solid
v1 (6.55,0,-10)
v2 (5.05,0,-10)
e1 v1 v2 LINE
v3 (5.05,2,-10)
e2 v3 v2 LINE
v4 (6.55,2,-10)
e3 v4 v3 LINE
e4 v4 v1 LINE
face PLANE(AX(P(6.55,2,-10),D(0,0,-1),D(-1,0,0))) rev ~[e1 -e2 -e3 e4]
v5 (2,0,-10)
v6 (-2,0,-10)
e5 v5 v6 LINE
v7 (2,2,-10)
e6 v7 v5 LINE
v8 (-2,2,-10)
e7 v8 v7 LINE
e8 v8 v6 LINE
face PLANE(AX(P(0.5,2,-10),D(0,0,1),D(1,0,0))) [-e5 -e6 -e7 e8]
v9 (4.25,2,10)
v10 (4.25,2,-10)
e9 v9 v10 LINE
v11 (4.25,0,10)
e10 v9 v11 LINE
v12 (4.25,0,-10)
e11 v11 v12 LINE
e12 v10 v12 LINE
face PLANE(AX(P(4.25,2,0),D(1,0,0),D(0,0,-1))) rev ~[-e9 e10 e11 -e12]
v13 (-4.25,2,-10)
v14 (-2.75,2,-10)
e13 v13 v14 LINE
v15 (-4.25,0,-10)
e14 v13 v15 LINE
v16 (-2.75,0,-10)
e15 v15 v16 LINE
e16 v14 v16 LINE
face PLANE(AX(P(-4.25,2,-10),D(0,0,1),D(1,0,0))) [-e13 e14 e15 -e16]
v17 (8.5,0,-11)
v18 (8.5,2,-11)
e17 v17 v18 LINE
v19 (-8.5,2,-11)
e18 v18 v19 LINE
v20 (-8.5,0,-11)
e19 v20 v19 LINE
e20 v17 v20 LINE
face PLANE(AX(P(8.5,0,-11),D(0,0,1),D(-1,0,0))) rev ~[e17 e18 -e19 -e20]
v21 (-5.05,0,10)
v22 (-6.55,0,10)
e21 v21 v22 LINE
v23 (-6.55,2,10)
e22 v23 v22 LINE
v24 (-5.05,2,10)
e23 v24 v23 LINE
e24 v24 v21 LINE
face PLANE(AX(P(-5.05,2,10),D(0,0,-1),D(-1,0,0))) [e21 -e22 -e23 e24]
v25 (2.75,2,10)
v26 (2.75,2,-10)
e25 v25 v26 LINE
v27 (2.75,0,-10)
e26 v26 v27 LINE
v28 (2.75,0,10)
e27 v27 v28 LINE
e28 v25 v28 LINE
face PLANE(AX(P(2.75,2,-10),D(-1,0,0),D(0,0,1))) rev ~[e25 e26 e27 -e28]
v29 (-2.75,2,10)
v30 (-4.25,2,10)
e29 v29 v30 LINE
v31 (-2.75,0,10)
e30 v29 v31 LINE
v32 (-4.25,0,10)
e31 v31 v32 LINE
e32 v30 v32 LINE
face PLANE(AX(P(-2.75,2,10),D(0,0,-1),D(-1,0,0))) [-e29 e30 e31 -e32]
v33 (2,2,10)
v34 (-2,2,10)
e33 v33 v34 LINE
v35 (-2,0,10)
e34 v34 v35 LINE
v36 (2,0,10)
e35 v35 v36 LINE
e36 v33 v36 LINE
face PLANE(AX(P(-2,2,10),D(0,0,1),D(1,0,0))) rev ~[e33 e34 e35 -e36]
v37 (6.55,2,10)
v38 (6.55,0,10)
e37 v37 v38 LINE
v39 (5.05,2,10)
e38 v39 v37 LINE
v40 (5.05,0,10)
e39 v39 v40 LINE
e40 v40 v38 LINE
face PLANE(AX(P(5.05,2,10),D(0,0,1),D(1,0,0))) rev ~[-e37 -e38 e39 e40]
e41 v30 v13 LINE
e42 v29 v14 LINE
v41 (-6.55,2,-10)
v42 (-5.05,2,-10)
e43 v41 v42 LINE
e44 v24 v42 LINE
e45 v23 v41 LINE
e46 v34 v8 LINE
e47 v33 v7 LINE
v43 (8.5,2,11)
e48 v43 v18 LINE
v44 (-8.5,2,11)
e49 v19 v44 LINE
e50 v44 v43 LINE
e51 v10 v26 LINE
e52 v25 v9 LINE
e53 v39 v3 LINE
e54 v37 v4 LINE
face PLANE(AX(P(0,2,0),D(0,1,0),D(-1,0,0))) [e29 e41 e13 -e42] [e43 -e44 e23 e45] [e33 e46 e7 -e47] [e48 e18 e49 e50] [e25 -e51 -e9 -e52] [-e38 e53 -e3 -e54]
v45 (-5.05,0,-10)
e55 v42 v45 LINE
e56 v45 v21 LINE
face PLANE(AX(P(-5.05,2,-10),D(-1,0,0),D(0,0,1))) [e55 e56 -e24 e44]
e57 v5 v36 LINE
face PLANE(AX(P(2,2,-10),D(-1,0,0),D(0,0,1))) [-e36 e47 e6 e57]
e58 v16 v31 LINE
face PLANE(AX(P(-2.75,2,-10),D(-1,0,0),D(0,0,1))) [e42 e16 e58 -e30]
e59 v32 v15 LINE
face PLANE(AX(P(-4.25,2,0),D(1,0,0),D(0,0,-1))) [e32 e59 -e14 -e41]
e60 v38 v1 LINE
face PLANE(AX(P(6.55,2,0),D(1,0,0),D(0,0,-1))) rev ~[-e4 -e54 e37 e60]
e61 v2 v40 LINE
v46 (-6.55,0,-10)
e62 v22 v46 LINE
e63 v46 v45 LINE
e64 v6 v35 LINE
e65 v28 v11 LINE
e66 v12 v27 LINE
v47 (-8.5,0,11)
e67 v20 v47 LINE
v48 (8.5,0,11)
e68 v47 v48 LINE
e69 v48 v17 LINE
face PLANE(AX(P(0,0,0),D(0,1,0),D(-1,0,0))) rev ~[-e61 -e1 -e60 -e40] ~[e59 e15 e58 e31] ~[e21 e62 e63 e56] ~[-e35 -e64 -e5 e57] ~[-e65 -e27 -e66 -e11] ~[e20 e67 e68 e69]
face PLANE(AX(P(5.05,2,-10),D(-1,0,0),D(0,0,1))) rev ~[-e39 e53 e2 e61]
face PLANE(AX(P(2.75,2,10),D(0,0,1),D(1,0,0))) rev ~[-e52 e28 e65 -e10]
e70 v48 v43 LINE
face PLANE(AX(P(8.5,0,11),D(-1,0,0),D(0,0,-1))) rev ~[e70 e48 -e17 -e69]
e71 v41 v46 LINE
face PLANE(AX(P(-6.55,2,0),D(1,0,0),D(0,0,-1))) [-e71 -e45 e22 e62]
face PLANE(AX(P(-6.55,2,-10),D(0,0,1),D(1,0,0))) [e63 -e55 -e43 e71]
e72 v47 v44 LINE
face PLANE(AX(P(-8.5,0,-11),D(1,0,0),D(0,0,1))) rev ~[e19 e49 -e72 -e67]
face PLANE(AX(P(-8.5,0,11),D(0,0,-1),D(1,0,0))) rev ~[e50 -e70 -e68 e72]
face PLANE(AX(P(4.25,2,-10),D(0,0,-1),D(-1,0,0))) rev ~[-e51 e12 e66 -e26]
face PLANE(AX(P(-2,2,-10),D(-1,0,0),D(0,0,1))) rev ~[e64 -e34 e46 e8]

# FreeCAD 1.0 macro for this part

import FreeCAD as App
import Part
import Sketcher

V = App.Vector

doc = App.newDocument("Part")
params = doc.addObject("Spreadsheet::Sheet", "Params")
for row, (alias, value) in enumerate([
    ("sketch1_width", "17 mm"),
    ("sketch1_height", "22 mm"),
    ("pad1_length", "2 mm"),
    ("sketch2_height", "20 mm"),
    ("sketch2_width", "1.5 mm"),
    ("sketch3_width", "1 mm"),
    ("sketch3_height", "20 mm"),
], start=1):
    params.set(f"A{row}", alias)
    params.set(f"B{row}", "=" + value)
    params.setAlias(f"B{row}", alias)

body = doc.addObject("PartDesign::Body", "Body")

# Sketch on XZ plane
sketch1 = body.newObject("Sketcher::SketchObject", "Sketch")
sketch1.AttachmentSupport = (doc.getObject("XZ_Plane"), [""])
sketch1.MapMode = "FlatFace"
sketch1.addGeometry([
    Part.LineSegment(V(-8, -11, 0), V(-8, 11, 0)),
    Part.LineSegment(V(-8, 11, 0), V(8, 11, 0)),
    Part.LineSegment(V(8, 11, 0), V(8, -11, 0)),
    Part.LineSegment(V(8, -11, 0), V(-8, -11, 0)),
], False)
sketch1.addConstraint([
    Sketcher.Constraint("Coincident", 0, 2, 1, 1),
    Sketcher.Constraint("Coincident", 1, 2, 2, 1),
    Sketcher.Constraint("Coincident", 2, 2, 3, 1),
    Sketcher.Constraint("Coincident", 3, 2, 0, 1),
    Sketcher.Constraint("Vertical", 0),
    Sketcher.Constraint("Horizontal", 1),
    Sketcher.Constraint("Vertical", 2),
    Sketcher.Constraint("Horizontal", 3),
    Sketcher.Constraint("Symmetric", 0, 2, 2, 2, -1, 1),
    Sketcher.Constraint("DistanceX", 1, 1, 1, 2, 17.0),
    Sketcher.Constraint("DistanceY", 0, 1, 0, 2, 22.0),
])
sketch1.setExpression("Constraints[9]", "Params.sketch1_width")
sketch1.setExpression("Constraints[10]", "Params.sketch1_height")
pad1 = body.newObject("PartDesign::Pad", "Pad")
pad1.Profile = sketch1
pad1.setExpression("Length", "Params.pad1_length")
pad1.Reversed = True

# Sketch on XZ plane
sketch2 = body.newObject("Sketcher::SketchObject", "Sketch001")
sketch2.AttachmentSupport = (doc.getObject("XZ_Plane"), [""])
sketch2.MapMode = "FlatFace"
sketch2.AttachmentOffset = App.Placement(V(0, 0, -2), App.Rotation())
sketch2.addGeometry([
    Part.LineSegment(V(5, -10, 0), V(5, 10, 0)),  # 0
    Part.LineSegment(V(5, 10, 0), V(6.5, 10, 0)),  # 1
    Part.LineSegment(V(6.5, 10, 0), V(6.5, -10, 0)),  # 2
    Part.LineSegment(V(6.5, -10, 0), V(5, -10, 0)),  # 3
    Part.LineSegment(V(2.8, -10, 0), V(2.8, 10, 0)),  # 4
    Part.LineSegment(V(2.8, 10, 0), V(4.2, 10, 0)),  # 5
    Part.LineSegment(V(4.2, 10, 0), V(4.2, -10, 0)),  # 6
    Part.LineSegment(V(4.2, -10, 0), V(2.8, -10, 0)),  # 7
    Part.LineSegment(V(0.5, -10, 0), V(0.5, 10, 0)),  # 8
    Part.LineSegment(V(0.5, 10, 0), V(2, 10, 0)),  # 9
    Part.LineSegment(V(2, 10, 0), V(2, -10, 0)),  # 10
    Part.LineSegment(V(2, -10, 0), V(0.5, -10, 0)),  # 11
    Part.LineSegment(V(-2, -10, 0), V(-2, 10, 0)),  # 12
    Part.LineSegment(V(-2, 10, 0), V(-0.5, 10, 0)),  # 13
    Part.LineSegment(V(-0.5, 10, 0), V(-0.5, -10, 0)),  # 14
    Part.LineSegment(V(-0.5, -10, 0), V(-2, -10, 0)),  # 15
    Part.LineSegment(V(-6.5, -10, 0), V(-6.5, 10, 0)),  # 16
    Part.LineSegment(V(-6.5, 10, 0), V(-5, 10, 0)),  # 17
    Part.LineSegment(V(-5, 10, 0), V(-5, -10, 0)),  # 18
    Part.LineSegment(V(-5, -10, 0), V(-6.5, -10, 0)),  # 19
    Part.LineSegment(V(-4.2, -10, 0), V(-4.2, 10, 0)),  # 20
    Part.LineSegment(V(-4.2, 10, 0), V(-2.8, 10, 0)),  # 21
    Part.LineSegment(V(-2.8, 10, 0), V(-2.8, -10, 0)),  # 22
    Part.LineSegment(V(-2.8, -10, 0), V(-4.2, -10, 0)),  # 23
], False)
sketch2.addConstraint([
    Sketcher.Constraint("Coincident", 0, 2, 1, 1),
    Sketcher.Constraint("Coincident", 1, 2, 2, 1),
    Sketcher.Constraint("Coincident", 2, 2, 3, 1),
    Sketcher.Constraint("Coincident", 3, 2, 0, 1),
    Sketcher.Constraint("Coincident", 4, 2, 5, 1),
    Sketcher.Constraint("Coincident", 5, 2, 6, 1),
    Sketcher.Constraint("Coincident", 6, 2, 7, 1),
    Sketcher.Constraint("Coincident", 7, 2, 4, 1),
    Sketcher.Constraint("Coincident", 8, 2, 9, 1),
    Sketcher.Constraint("Coincident", 9, 2, 10, 1),
    Sketcher.Constraint("Coincident", 10, 2, 11, 1),
    Sketcher.Constraint("Coincident", 11, 2, 8, 1),
    Sketcher.Constraint("Coincident", 12, 2, 13, 1),
    Sketcher.Constraint("Coincident", 13, 2, 14, 1),
    Sketcher.Constraint("Coincident", 14, 2, 15, 1),
    Sketcher.Constraint("Coincident", 15, 2, 12, 1),
    Sketcher.Constraint("Coincident", 16, 2, 17, 1),
    Sketcher.Constraint("Coincident", 17, 2, 18, 1),
    Sketcher.Constraint("Coincident", 18, 2, 19, 1),
    Sketcher.Constraint("Coincident", 19, 2, 16, 1),
    Sketcher.Constraint("Coincident", 20, 2, 21, 1),
    Sketcher.Constraint("Coincident", 21, 2, 22, 1),
    Sketcher.Constraint("Coincident", 22, 2, 23, 1),
    Sketcher.Constraint("Coincident", 23, 2, 20, 1),
    Sketcher.Constraint("Vertical", 0),
    Sketcher.Constraint("Horizontal", 1),
    Sketcher.Constraint("Vertical", 2),
    Sketcher.Constraint("Horizontal", 3),
    Sketcher.Constraint("Vertical", 4),
    Sketcher.Constraint("Horizontal", 5),
    Sketcher.Constraint("Vertical", 6),
    Sketcher.Constraint("Horizontal", 7),
    Sketcher.Constraint("Vertical", 8),
    Sketcher.Constraint("Horizontal", 9),
    Sketcher.Constraint("Vertical", 10),
    Sketcher.Constraint("Horizontal", 11),
    Sketcher.Constraint("Vertical", 12),
    Sketcher.Constraint("Horizontal", 13),
    Sketcher.Constraint("Vertical", 14),
    Sketcher.Constraint("Horizontal", 15),
    Sketcher.Constraint("Vertical", 16),
    Sketcher.Constraint("Horizontal", 17),
    Sketcher.Constraint("Vertical", 18),
    Sketcher.Constraint("Horizontal", 19),
    Sketcher.Constraint("Vertical", 20),
    Sketcher.Constraint("Horizontal", 21),
    Sketcher.Constraint("Vertical", 22),
    Sketcher.Constraint("Horizontal", 23),
    Sketcher.Constraint("Symmetric", 10, 2, 12, 2, -1, 1),
    Sketcher.Constraint("Symmetric", 8, 2, 14, 2, -1, 1),
    Sketcher.Constraint("Symmetric", 2, 2, 16, 2, -1, 1),
    Sketcher.Constraint("Symmetric", 0, 2, 18, 2, -1, 1),
    Sketcher.Constraint("Symmetric", 6, 2, 20, 2, -1, 1),
    Sketcher.Constraint("Symmetric", 4, 2, 22, 2, -1, 1),
    Sketcher.Constraint("Horizontal", 1, 2, 4, 2),
    Sketcher.Constraint("Horizontal", 3, 2, 6, 2),
    Sketcher.Constraint("Horizontal", 5, 2, 8, 2),
    Sketcher.Constraint("Horizontal", 7, 2, 10, 2),
    Sketcher.Constraint("Horizontal", 9, 2, 12, 2),
    Sketcher.Constraint("Equal", 3, 5),
    Sketcher.Constraint("Equal", 7, 9),
    Sketcher.Constraint("DistanceY", 0, 1, 0, 2, 20.0),
    Sketcher.Constraint("DistanceX", 1, 1, 1, 2, 1.5),
    Sketcher.Constraint("DistanceX", -1, 1, 8, 2, 0.5),
    Sketcher.Constraint("DistanceX", -1, 1, 0, 2, 5.05),
    Sketcher.Constraint("DistanceX", -1, 1, 4, 2, 2.75),
])
sketch2.setExpression("Constraints[61]", "Params.sketch2_height")
sketch2.setExpression("Constraints[62]", "Params.sketch2_width")
pocket1 = body.newObject("PartDesign::Pocket", "Pocket")
pocket1.Profile = sketch2
pocket1.Type = "ThroughAll"
pocket1.Reversed = True

# Sketch on XZ plane
sketch3 = body.newObject("Sketcher::SketchObject", "Sketch002")
sketch3.AttachmentSupport = (doc.getObject("XZ_Plane"), [""])
sketch3.MapMode = "FlatFace"
sketch3.AttachmentOffset = App.Placement(V(0, 0, -2), App.Rotation())
sketch3.addGeometry([
    Part.LineSegment(V(-0.5, 10, 0), V(0.5, 10, 0)),
    Part.LineSegment(V(0.5, 10, 0), V(0.5, -10, 0)),
    Part.LineSegment(V(0.5, -10, 0), V(-0.5, -10, 0)),
    Part.LineSegment(V(-0.5, -10, 0), V(-0.5, 10, 0)),
], False)
sketch3.addConstraint([
    Sketcher.Constraint("Coincident", 0, 2, 1, 1),
    Sketcher.Constraint("Coincident", 1, 2, 2, 1),
    Sketcher.Constraint("Coincident", 2, 2, 3, 1),
    Sketcher.Constraint("Coincident", 3, 2, 0, 1),
    Sketcher.Constraint("Horizontal", 0),
    Sketcher.Constraint("Vertical", 1),
    Sketcher.Constraint("Horizontal", 2),
    Sketcher.Constraint("Vertical", 3),
    Sketcher.Constraint("Symmetric", 0, 2, 2, 2, -1, 1),
    Sketcher.Constraint("DistanceX", 0, 1, 0, 2, 1.0),
    Sketcher.Constraint("DistanceY", 1, 2, 1, 1, 20.0),
])
sketch3.setExpression("Constraints[9]", "Params.sketch3_width")
sketch3.setExpression("Constraints[10]", "Params.sketch3_height")
pocket2 = body.newObject("PartDesign::Pocket", "Pocket001")
pocket2.Profile = sketch3
pocket2.Type = "ThroughAll"
pocket2.Reversed = True

doc.recompute()
